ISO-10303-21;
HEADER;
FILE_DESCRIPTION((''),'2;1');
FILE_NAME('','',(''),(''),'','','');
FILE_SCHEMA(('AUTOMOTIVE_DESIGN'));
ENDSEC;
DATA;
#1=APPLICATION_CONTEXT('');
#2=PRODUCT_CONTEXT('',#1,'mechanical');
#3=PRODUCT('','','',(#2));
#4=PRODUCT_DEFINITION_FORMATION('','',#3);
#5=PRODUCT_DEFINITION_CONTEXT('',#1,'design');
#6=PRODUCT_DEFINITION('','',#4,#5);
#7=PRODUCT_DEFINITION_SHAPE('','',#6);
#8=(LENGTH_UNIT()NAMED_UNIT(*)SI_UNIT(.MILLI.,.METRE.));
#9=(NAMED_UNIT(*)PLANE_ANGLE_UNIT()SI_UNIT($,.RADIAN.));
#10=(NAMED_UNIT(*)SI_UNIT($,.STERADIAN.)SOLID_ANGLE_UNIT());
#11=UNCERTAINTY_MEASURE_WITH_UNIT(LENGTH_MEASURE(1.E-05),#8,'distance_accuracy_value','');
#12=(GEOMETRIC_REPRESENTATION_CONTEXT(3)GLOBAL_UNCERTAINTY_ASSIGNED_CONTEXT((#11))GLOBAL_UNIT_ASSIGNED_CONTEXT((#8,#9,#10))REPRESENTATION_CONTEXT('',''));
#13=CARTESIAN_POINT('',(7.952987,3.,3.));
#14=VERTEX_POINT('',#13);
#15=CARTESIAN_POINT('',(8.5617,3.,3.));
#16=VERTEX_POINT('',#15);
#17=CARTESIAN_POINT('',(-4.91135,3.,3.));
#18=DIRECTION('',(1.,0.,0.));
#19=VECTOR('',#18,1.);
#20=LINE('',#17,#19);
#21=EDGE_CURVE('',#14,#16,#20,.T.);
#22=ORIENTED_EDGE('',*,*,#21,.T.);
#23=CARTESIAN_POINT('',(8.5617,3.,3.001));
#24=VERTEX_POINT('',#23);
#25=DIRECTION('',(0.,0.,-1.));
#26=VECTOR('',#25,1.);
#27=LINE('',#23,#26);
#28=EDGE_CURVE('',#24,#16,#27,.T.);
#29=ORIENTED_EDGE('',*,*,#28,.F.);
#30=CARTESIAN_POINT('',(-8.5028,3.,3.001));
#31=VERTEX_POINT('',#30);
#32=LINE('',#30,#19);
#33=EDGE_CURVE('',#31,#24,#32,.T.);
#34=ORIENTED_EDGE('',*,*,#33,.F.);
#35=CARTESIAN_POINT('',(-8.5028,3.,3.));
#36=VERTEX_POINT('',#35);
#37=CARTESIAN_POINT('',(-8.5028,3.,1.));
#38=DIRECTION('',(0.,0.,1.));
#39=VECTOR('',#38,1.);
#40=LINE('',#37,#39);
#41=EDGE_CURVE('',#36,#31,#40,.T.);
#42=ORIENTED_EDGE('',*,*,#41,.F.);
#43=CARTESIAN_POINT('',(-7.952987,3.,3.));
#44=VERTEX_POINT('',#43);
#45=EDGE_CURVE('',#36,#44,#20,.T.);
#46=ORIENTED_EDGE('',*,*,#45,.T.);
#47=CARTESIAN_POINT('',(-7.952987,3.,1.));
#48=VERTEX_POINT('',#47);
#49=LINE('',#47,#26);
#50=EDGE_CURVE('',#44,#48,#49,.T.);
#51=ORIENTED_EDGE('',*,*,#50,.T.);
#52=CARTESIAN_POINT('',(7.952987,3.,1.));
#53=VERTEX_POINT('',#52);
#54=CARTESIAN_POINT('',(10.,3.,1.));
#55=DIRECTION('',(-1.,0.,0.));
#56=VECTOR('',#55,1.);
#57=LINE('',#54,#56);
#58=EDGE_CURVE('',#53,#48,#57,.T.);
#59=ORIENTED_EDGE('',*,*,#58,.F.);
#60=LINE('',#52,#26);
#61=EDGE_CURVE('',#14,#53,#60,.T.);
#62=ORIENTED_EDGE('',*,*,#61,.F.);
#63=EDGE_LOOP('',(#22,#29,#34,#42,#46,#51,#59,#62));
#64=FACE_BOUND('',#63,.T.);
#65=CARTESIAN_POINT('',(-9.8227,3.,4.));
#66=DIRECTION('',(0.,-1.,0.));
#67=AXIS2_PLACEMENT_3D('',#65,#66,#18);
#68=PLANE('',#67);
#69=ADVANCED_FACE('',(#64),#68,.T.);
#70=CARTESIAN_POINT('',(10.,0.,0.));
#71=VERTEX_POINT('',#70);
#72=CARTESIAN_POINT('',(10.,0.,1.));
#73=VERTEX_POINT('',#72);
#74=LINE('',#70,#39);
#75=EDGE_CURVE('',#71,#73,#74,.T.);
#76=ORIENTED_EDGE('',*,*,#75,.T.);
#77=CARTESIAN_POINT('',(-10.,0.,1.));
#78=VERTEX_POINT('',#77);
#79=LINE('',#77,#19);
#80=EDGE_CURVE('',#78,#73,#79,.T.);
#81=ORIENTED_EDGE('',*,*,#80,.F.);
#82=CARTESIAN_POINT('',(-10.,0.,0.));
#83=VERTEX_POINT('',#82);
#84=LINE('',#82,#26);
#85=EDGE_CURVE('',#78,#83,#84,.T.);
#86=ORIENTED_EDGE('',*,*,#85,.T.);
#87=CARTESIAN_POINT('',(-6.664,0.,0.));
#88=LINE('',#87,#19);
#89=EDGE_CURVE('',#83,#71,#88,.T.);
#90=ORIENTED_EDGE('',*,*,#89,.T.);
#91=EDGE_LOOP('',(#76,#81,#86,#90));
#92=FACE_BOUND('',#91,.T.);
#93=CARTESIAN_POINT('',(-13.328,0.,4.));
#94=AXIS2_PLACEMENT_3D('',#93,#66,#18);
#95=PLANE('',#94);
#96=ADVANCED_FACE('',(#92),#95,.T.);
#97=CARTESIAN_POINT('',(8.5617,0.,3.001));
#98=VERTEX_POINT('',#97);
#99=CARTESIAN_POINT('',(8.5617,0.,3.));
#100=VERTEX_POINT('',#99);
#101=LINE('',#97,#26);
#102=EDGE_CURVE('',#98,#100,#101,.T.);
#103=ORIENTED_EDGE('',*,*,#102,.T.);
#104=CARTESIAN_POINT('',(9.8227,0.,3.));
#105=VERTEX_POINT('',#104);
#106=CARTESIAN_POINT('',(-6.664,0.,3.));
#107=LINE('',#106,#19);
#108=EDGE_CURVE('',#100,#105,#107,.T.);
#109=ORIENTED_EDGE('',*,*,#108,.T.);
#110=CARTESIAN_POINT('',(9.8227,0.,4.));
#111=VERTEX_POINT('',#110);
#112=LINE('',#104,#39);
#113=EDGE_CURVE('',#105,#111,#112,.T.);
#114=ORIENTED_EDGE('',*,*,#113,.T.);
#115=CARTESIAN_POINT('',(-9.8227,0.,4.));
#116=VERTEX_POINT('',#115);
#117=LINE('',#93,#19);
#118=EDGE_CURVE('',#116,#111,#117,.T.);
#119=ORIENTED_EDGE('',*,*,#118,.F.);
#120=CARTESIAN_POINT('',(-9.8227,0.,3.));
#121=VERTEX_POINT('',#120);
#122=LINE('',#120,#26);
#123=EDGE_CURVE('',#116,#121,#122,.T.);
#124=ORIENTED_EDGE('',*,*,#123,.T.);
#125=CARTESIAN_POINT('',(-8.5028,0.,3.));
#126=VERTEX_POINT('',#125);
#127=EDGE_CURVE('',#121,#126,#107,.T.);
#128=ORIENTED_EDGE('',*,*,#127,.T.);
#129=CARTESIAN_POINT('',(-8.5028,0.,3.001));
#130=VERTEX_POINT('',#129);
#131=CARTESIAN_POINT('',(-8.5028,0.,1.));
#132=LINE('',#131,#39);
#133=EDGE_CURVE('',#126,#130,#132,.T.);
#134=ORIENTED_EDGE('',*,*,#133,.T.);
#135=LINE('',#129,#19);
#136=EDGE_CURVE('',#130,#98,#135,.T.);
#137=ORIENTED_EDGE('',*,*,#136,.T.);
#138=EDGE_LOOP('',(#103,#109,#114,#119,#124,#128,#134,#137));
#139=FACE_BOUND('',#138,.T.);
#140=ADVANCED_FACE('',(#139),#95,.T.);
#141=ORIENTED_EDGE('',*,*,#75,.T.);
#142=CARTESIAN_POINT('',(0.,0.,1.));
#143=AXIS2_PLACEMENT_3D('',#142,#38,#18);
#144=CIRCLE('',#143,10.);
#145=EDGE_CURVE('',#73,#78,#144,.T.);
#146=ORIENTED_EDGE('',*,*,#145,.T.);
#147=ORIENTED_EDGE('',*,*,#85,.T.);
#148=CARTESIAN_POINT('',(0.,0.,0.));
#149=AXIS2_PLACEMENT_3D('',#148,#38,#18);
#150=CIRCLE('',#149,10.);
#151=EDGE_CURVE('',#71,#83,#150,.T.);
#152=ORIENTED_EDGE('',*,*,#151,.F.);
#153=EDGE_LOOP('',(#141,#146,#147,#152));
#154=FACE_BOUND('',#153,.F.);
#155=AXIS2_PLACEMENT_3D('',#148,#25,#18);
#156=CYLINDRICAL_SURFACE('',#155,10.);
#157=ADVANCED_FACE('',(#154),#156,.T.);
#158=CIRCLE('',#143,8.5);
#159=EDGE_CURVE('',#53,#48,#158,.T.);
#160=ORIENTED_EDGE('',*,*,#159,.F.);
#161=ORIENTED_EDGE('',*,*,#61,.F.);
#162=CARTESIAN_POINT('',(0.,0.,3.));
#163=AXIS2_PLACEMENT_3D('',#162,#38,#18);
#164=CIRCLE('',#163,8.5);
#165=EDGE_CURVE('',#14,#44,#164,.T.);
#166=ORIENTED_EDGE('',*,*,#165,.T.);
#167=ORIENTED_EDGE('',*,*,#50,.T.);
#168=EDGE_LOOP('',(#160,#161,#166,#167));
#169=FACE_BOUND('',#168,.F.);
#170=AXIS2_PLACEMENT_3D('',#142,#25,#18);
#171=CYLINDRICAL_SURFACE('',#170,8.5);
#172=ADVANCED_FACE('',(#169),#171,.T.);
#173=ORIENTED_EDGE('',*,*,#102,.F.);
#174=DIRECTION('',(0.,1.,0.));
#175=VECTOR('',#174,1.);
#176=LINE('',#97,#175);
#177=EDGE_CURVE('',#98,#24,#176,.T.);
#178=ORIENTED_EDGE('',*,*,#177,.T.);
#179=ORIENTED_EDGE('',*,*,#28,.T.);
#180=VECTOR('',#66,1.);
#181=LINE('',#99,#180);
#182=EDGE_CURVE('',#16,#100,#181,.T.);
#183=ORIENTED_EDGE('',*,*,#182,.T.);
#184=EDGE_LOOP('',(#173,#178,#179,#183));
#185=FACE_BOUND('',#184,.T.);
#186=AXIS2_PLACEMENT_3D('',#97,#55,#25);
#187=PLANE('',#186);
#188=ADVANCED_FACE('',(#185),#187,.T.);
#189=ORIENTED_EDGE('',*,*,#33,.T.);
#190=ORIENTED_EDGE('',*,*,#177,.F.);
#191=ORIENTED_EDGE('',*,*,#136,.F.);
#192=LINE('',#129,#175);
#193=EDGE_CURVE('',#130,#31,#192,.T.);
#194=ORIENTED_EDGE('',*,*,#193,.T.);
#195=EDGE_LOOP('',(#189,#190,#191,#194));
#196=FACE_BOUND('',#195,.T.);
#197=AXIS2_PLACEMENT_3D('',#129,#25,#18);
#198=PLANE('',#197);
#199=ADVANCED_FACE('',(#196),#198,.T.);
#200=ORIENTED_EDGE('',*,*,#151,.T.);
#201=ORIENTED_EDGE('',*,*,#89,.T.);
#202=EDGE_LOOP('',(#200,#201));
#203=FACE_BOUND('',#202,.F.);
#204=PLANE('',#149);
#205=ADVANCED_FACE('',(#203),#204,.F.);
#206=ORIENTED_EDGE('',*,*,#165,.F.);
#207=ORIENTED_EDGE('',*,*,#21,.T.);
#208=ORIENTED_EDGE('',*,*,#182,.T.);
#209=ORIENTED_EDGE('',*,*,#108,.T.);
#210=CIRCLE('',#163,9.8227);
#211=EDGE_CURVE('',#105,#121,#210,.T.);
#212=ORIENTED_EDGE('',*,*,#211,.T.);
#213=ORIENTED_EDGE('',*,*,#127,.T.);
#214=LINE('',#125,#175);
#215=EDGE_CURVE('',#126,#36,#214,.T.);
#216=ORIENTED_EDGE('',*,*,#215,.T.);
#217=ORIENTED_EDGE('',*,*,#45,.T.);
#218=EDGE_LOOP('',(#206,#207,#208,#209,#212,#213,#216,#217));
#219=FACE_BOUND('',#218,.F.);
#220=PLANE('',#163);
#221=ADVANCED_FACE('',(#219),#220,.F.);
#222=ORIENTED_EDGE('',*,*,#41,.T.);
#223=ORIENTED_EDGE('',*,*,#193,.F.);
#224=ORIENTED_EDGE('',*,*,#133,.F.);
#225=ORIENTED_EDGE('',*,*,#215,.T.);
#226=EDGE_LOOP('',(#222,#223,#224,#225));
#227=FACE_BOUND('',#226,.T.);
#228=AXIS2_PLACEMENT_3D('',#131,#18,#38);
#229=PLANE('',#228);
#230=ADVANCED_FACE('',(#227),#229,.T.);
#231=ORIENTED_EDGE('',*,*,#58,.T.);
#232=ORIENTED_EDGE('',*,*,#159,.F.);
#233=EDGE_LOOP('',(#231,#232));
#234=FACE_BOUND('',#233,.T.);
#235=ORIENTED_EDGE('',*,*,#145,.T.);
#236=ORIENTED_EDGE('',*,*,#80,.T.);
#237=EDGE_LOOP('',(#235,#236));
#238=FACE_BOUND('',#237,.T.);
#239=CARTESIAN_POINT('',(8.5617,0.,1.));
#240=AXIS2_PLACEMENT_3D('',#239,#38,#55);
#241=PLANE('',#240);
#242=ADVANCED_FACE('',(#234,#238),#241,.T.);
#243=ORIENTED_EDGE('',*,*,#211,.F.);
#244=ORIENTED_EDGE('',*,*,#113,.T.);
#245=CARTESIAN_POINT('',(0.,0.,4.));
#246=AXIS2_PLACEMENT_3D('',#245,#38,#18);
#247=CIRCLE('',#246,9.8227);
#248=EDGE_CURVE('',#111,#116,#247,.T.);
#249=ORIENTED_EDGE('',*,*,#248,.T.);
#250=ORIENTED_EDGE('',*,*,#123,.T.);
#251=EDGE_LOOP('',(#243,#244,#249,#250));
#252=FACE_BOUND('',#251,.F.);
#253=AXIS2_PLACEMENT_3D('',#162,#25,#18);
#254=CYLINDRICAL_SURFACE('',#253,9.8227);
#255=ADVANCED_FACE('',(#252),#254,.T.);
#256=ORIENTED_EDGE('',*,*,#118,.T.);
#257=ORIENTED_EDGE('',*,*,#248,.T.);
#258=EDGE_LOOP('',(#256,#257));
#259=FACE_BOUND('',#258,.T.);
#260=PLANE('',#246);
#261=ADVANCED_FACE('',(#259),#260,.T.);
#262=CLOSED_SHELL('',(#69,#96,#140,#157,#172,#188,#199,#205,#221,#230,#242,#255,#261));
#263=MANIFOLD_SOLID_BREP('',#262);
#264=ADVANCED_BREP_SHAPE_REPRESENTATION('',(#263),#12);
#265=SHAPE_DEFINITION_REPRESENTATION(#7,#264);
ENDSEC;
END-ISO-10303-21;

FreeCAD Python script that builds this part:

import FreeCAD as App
import Part
import Sketcher
Q = App.Units.Quantity

doc = App.newDocument("Part")
body = doc.addObject("PartDesign::Body", "Body")

sketch1 = body.newObject("Sketcher::SketchObject", "Sketch")
sketch1.AttachmentSupport = (doc.getObject("XY_Plane"), [""])
sketch1.MapMode = "FlatFace"
sketch1.addGeometry(Part.Circle(App.Vector(0, 0, 0), App.Vector(0, 0, 1), 10), False)
sketch1.addConstraint(Sketcher.Constraint("Coincident", 0, 3, -1, 1))
sketch1.addConstraint(Sketcher.Constraint("Diameter", 0, Q("20 mm")))
pad1 = body.newObject("PartDesign::Pad", "Pad")
pad1.Profile = sketch1
pad1.Length = 1

sketch2 = body.newObject("Sketcher::SketchObject", "Sketch001")
sketch2.AttachmentSupport = (doc.getObject("XY_Plane"), [""])
sketch2.MapMode = "FlatFace"
sketch2.AttachmentOffset = App.Placement(App.Vector(0, 0, 1), App.Rotation())
sketch2.addGeometry(Part.Circle(App.Vector(0, 0, 0), App.Vector(0, 0, 1), 8), False)
sketch2.addConstraint(Sketcher.Constraint("Coincident", 0, 3, -1, 1))
sketch2.addConstraint(Sketcher.Constraint("Diameter", 0, Q("17 mm")))
pad2 = body.newObject("PartDesign::Pad", "Pad001")
pad2.Profile = sketch2
pad2.Length = 2

sketch3 = body.newObject("Sketcher::SketchObject", "Sketch002")
sketch3.AttachmentSupport = (doc.getObject("XY_Plane"), [""])
sketch3.MapMode = "FlatFace"
sketch3.AttachmentOffset = App.Placement(App.Vector(0, 0, 3), App.Rotation())
sketch3.addGeometry(Part.Circle(App.Vector(0, 0, 0), App.Vector(0, 0, 1), 10), False)
sketch3.addConstraint(Sketcher.Constraint("Coincident", 0, 3, -1, 1))
sketch3.addConstraint(Sketcher.Constraint("Diameter", 0, Q("19.6454 mm")))
pad3 = body.newObject("PartDesign::Pad", "Pad002")
pad3.Profile = sketch3
pad3.Length = 1

sketch4 = body.newObject("Sketcher::SketchObject", "Sketch003")
sketch4.AttachmentSupport = (doc.getObject("XY_Plane"), [""])
sketch4.MapMode = "FlatFace"
sketch4.AttachmentOffset = App.Placement(App.Vector(0, 0, 4), App.Rotation())
sketch4.addGeometry(Part.Circle(App.Vector(0, 0, 0), App.Vector(0, 0, 1), 4.5), False)
sketch4.addGeometry(Part.LineSegment(App.Vector(-3.2, -1.8, 0), App.Vector(-3.2, 1.8, 0)), False)
sketch4.addGeometry(Part.LineSegment(App.Vector(-3.2, 1.8, 0), App.Vector(3.2, 1.8, 0)), False)
sketch4.addGeometry(Part.LineSegment(App.Vector(3.2, 1.8, 0), App.Vector(3.2, -1.8, 0)), False)
sketch4.addGeometry(Part.LineSegment(App.Vector(3.2, -1.8, 0), App.Vector(-3.2, -1.8, 0)), False)
sketch4.addConstraint(Sketcher.Constraint("Coincident", 1, 2, 2, 1))
sketch4.addConstraint(Sketcher.Constraint("Coincident", 2, 2, 3, 1))
sketch4.addConstraint(Sketcher.Constraint("Coincident", 3, 2, 4, 1))
sketch4.addConstraint(Sketcher.Constraint("Coincident", 4, 2, 1, 1))
sketch4.addConstraint(Sketcher.Constraint("Vertical", 1))
sketch4.addConstraint(Sketcher.Constraint("Horizontal", 2))
sketch4.addConstraint(Sketcher.Constraint("Vertical", 3))
sketch4.addConstraint(Sketcher.Constraint("Horizontal", 4))
sketch4.addConstraint(Sketcher.Constraint("Coincident", 0, 3, -1, 1))
sketch4.addConstraint(Sketcher.Constraint("Symmetric", 1, 2, 3, 2, -1, 1))
sketch4.addConstraint(Sketcher.Constraint("Diameter", 0, Q("9 mm")))
sketch4.addConstraint(Sketcher.Constraint("DistanceX", 2, 1, 2, 2, Q("6.5 mm")))
sketch4.addConstraint(Sketcher.Constraint("DistanceY", 1, 1, 1, 2, Q("3.5 mm")))
pad4 = body.newObject("PartDesign::Pad", "Pad003")
pad4.Profile = sketch4
pad4.Length = 7

sketch5 = body.newObject("Sketcher::SketchObject", "Sketch004")
sketch5.AttachmentSupport = (doc.getObject("XY_Plane"), [""])
sketch5.MapMode = "FlatFace"
sketch5.AttachmentOffset = App.Placement(App.Vector(0, 0, 11), App.Rotation())
sketch5.addGeometry(Part.Circle(App.Vector(0, 0, 0), App.Vector(0, 0, 1), 4.5), False)
sketch5.addConstraint(Sketcher.Constraint("Coincident", 0, 3, -1, 1))
sketch5.addConstraint(Sketcher.Constraint("Diameter", 0, Q("9 mm")))
pocket1 = body.newObject("PartDesign::Pocket", "Pocket")
pocket1.Profile = sketch5
pocket1.Length = 7

sketch6 = body.newObject("Sketcher::SketchObject", "Sketch005")
sketch6.AttachmentSupport = (doc.getObject("XY_Plane"), [""])
sketch6.MapMode = "FlatFace"
sketch6.AttachmentOffset = App.Placement(App.Vector(0, 0, 4), App.Rotation())
sketch6.addGeometry(Part.LineSegment(App.Vector(13, 0, 0), App.Vector(-13, 0, 0)), False)
sketch6.addGeometry(Part.LineSegment(App.Vector(-13, 0, 0), App.Vector(-13, -10, 0)), False)
sketch6.addGeometry(Part.LineSegment(App.Vector(-13, -10, 0), App.Vector(13, -10, 0)), False)
sketch6.addGeometry(Part.LineSegment(App.Vector(13, -10, 0), App.Vector(13, 0, 0)), False)
sketch6.addConstraint(Sketcher.Constraint("Coincident", 0, 2, 1, 1))
sketch6.addConstraint(Sketcher.Constraint("Coincident", 1, 2, 2, 1))
sketch6.addConstraint(Sketcher.Constraint("Coincident", 2, 2, 3, 1))
sketch6.addConstraint(Sketcher.Constraint("Coincident", 3, 2, 0, 1))
sketch6.addConstraint(Sketcher.Constraint("Horizontal", 0))
sketch6.addConstraint(Sketcher.Constraint("Vertical", 1))
sketch6.addConstraint(Sketcher.Constraint("Horizontal", 2))
sketch6.addConstraint(Sketcher.Constraint("Vertical", 3))
sketch6.addConstraint(Sketcher.Constraint("PointOnObject", 0, 2, -1))
sketch6.addConstraint(Sketcher.Constraint("DistanceX", 0, 2, 0, 1, Q("25.832 mm")))
sketch6.addConstraint(Sketcher.Constraint("DistanceY", 1, 2, 1, 1, Q("10.2387 mm")))
sketch6.addConstraint(Sketcher.Constraint("DistanceX", 0, 2, -1, 1, Q("13.328 mm")))
pocket2 = body.newObject("PartDesign::Pocket", "Pocket001")
pocket2.Profile = sketch6
pocket2.Length = 10

sketch7 = body.newObject("Sketcher::SketchObject", "Sketch006")
sketch7.AttachmentSupport = (doc.getObject("XZ_Plane"), [""])
sketch7.MapMode = "FlatFace"
sketch7.addGeometry(Part.LineSegment(App.Vector(-8.5, 1, 0), App.Vector(8.6, 1, 0)), False)
sketch7.addGeometry(Part.LineSegment(App.Vector(8.6, 1, 0), App.Vector(8.6, 3, 0)), False)
sketch7.addGeometry(Part.LineSegment(App.Vector(8.6, 3, 0), App.Vector(-8.5, 3, 0)), False)
sketch7.addGeometry(Part.LineSegment(App.Vector(-8.5, 3, 0), App.Vector(-8.5, 1, 0)), False)
sketch7.addConstraint(Sketcher.Constraint("Coincident", 0, 2, 1, 1))
sketch7.addConstraint(Sketcher.Constraint("Coincident", 1, 2, 2, 1))
sketch7.addConstraint(Sketcher.Constraint("Coincident", 2, 2, 3, 1))
sketch7.addConstraint(Sketcher.Constraint("Coincident", 3, 2, 0, 1))
sketch7.addConstraint(Sketcher.Constraint("Horizontal", 0))
sketch7.addConstraint(Sketcher.Constraint("Vertical", 1))
sketch7.addConstraint(Sketcher.Constraint("Horizontal", 2))
sketch7.addConstraint(Sketcher.Constraint("Vertical", 3))
sketch7.addConstraint(Sketcher.Constraint("DistanceY", -1, 1, 0, 2, Q("1 mm")))
sketch7.addConstraint(Sketcher.Constraint("DistanceY", 1, 1, 1, 2, Q("2.001 mm")))
sketch7.addConstraint(Sketcher.Constraint("DistanceX", 0, 1, 0, 2, Q("17.0645 mm")))
sketch7.addConstraint(Sketcher.Constraint("DistanceX", -1, 1, 0, 2, Q("8.5617 mm")))
pocket3 = body.newObject("PartDesign::Pocket", "Pocket002")
pocket3.Profile = sketch7
pocket3.Length = 3

doc.recompute()
